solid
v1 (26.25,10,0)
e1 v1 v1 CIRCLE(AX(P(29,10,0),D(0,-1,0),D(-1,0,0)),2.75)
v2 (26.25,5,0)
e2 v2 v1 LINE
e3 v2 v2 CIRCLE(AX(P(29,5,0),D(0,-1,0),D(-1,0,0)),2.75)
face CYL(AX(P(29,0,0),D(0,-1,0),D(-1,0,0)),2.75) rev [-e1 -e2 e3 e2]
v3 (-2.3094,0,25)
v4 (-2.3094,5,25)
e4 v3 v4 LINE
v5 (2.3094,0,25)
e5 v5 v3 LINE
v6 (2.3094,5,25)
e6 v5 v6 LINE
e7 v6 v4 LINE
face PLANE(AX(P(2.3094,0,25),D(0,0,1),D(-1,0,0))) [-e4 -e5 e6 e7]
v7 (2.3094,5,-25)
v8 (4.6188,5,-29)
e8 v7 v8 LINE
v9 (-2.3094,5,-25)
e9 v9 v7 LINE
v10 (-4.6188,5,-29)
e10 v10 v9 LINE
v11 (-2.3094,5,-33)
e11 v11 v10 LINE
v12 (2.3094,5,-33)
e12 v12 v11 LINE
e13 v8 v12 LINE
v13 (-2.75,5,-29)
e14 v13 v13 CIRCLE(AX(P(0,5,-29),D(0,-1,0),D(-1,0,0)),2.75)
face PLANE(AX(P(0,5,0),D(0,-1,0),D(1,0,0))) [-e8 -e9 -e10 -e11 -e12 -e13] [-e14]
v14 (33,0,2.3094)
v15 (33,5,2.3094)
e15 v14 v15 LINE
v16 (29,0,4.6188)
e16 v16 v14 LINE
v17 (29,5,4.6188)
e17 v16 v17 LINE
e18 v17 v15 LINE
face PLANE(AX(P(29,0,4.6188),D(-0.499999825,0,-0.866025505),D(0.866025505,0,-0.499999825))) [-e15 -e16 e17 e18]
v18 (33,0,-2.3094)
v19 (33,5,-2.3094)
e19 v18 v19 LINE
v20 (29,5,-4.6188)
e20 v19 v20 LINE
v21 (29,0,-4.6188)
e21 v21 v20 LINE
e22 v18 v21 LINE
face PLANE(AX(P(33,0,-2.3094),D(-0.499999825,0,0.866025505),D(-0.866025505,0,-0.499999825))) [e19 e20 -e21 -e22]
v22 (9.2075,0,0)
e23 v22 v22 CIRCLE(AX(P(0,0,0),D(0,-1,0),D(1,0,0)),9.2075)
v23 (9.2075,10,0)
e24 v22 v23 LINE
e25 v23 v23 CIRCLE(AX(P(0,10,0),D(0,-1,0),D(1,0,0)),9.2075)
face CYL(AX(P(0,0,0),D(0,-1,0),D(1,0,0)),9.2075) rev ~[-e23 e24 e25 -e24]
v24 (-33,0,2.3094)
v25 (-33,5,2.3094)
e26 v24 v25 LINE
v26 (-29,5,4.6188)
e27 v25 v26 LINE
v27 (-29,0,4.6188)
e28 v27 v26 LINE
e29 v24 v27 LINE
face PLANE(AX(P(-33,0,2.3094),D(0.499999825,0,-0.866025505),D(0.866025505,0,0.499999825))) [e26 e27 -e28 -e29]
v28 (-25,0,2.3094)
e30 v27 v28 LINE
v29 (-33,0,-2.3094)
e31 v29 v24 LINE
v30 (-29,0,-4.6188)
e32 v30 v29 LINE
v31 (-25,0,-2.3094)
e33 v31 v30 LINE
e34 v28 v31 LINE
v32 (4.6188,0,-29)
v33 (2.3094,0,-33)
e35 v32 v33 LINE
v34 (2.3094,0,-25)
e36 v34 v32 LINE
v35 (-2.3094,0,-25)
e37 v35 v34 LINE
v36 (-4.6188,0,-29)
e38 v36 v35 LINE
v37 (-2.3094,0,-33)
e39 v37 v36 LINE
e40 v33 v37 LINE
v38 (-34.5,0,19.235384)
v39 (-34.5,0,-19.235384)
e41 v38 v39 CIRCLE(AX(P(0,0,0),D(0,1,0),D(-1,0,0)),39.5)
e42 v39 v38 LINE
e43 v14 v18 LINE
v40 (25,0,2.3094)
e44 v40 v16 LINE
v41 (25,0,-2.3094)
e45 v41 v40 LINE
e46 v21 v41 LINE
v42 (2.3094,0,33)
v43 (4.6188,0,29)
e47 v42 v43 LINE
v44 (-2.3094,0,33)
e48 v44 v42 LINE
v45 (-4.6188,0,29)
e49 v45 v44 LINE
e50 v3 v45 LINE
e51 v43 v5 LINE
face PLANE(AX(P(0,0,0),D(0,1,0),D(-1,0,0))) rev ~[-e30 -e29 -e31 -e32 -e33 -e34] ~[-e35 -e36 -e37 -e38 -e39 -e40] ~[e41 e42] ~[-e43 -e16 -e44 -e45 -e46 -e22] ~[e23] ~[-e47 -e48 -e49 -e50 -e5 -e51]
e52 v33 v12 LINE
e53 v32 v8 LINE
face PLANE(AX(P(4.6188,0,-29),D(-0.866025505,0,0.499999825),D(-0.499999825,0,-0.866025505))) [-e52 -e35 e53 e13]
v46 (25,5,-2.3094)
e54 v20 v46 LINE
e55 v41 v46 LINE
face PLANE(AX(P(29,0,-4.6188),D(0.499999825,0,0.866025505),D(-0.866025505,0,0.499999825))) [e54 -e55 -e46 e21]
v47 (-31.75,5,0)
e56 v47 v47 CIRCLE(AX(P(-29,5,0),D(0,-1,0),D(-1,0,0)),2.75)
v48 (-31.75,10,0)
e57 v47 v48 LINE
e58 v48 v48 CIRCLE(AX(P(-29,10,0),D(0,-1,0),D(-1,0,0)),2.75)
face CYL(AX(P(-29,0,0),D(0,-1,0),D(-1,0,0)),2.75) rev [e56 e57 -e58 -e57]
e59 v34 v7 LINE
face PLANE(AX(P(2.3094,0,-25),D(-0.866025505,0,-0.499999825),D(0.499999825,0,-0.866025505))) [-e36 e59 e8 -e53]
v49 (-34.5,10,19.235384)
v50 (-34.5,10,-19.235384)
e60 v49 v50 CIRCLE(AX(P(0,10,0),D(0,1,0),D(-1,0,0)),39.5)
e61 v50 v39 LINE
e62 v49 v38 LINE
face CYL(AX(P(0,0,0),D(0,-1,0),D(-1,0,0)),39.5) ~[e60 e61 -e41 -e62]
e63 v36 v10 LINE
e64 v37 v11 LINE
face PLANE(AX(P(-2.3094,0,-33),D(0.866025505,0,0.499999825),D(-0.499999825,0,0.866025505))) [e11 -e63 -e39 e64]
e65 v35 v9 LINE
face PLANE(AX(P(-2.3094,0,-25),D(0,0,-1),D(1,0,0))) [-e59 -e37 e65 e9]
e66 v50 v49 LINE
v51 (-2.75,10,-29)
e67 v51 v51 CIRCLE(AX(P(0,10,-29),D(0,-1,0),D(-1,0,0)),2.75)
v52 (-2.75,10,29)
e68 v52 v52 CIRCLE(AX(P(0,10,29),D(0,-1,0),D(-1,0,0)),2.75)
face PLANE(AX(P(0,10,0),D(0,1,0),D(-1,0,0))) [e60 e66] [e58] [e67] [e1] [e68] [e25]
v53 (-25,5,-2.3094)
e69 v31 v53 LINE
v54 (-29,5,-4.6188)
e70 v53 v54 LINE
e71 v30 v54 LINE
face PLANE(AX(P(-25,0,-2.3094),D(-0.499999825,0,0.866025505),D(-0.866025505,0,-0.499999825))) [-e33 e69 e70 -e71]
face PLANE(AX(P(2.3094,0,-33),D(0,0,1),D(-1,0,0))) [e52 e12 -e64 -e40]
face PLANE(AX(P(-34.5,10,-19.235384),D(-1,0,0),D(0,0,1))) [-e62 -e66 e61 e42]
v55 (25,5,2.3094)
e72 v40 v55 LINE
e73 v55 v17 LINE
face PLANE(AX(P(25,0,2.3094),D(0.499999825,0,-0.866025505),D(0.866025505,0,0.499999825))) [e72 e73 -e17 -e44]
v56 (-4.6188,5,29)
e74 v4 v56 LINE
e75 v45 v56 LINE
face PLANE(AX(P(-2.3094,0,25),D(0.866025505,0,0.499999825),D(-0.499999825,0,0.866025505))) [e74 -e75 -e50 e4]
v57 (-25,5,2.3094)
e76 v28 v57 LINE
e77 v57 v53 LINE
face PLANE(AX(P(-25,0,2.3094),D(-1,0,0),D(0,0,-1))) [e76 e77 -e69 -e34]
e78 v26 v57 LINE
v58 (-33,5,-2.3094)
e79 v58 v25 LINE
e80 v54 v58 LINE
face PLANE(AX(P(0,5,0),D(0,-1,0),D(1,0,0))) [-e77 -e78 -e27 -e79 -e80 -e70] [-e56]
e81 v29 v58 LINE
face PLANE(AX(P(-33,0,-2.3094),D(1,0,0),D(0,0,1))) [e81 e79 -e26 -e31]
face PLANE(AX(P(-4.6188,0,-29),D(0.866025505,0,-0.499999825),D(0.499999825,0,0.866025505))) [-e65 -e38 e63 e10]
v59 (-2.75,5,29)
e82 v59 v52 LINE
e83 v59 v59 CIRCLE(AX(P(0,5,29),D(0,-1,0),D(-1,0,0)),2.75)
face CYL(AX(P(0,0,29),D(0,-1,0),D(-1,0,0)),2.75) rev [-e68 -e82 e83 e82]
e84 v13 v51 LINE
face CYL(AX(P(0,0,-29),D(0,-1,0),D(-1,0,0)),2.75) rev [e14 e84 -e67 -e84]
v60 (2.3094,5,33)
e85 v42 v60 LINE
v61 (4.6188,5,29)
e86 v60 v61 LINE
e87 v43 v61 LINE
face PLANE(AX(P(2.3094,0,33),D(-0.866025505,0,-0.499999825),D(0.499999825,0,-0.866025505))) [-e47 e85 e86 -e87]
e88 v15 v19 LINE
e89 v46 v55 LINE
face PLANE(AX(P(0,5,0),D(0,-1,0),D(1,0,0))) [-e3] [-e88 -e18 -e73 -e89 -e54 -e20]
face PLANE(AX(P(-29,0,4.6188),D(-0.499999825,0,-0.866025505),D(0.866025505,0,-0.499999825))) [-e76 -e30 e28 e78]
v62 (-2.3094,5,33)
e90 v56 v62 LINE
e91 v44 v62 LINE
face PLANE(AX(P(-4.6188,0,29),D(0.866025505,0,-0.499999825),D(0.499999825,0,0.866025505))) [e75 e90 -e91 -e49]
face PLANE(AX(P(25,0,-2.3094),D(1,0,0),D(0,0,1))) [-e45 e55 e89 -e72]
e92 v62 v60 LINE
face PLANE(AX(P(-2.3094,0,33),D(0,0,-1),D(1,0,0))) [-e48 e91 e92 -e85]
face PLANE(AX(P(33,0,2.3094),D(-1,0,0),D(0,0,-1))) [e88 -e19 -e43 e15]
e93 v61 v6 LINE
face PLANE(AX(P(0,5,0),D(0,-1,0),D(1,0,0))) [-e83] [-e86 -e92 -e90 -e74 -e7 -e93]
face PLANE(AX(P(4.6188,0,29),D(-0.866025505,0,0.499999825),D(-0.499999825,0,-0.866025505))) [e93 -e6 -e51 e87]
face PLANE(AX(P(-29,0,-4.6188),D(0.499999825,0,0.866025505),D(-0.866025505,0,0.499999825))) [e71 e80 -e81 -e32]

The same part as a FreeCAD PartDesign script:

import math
import FreeCAD as App
import Part
import Sketcher

V = App.Vector
Q = App.Units.Quantity

doc = App.newDocument("Part")
body = doc.addObject("PartDesign::Body", "Body")

# Sketch on XZ plane
sketch1 = body.newObject("Sketcher::SketchObject", "Sketch")
sketch1.AttachmentSupport = (doc.getObject("XZ_Plane"), [""])
sketch1.MapMode = "FlatFace"
sketch1.addGeometry([
    Part.Circle(V(0, 0, 0), V(0, 0, 1), 39.5),  # 0
    Part.Circle(V(0, 29, 0), V(0, 0, 1), 2.8),  # 1
    Part.Circle(V(29, 0, 0), V(0, 0, 1), 2.8),  # 2
    Part.Circle(V(0, -29, 0), V(0, 0, 1), 2.8),  # 3
    Part.Circle(V(-29, 0, 0), V(0, 0, 1), 2.8),  # 4
], False)
sketch1.addConstraint([
    Sketcher.Constraint("Coincident", 0, 3, -1, 1),
    Sketcher.Constraint("Equal", 1, 2),
    Sketcher.Constraint("Equal", 2, 3),
    Sketcher.Constraint("Equal", 3, 4),
    Sketcher.Constraint("Symmetric", 1, 3, 3, 3, -1, 1),
    Sketcher.Constraint("Symmetric", 2, 3, 4, 3, -1, 1),
    Sketcher.Constraint("PointOnObject", 1, 3, -2),
    Sketcher.Constraint("PointOnObject", 2, 3, -1),
    Sketcher.Constraint("Diameter", 0, Q("79 mm")),
    Sketcher.Constraint("Diameter", 1, Q("5.5 mm")),
    Sketcher.Constraint("DistanceY", 3, 3, 1, 3, Q("58 mm")),
    Sketcher.Constraint("DistanceX", 4, 3, 2, 3, Q("58 mm")),
])
pad1 = body.newObject("PartDesign::Pad", "Pad")
pad1.Profile = sketch1
pad1.Length = 10
pad1.Reversed = True

# Sketch on XZ plane
sketch2 = body.newObject("Sketcher::SketchObject", "Sketch001")
sketch2.AttachmentSupport = (doc.getObject("XZ_Plane"), [""])
sketch2.MapMode = "FlatFace"
sketch2.AttachmentOffset = App.Placement(V(0, 0, -10), App.Rotation())
sketch2.addGeometry([
    Part.LineSegment(V(-34, 19, 0), V(-34, -19, 0)),
    Part.ArcOfCircle(Part.Circle(V(0, 0, 0), V(0, 0, 1), 40), math.radians(151), math.radians(209)),
], False)
sketch2.addConstraint([
    Sketcher.Constraint("Coincident", 0, 1, 1, 1),
    Sketcher.Constraint("Coincident", 1, 2, 0, 2),
    Sketcher.Constraint("Vertical", 0),
    Sketcher.Constraint("Coincident", 1, 3, -1, 1),
    Sketcher.Constraint("Radius", 1, Q("39.5 mm")),
    Sketcher.Constraint("DistanceX", 0, 1, -1, 1, Q("34.5 mm")),
])
pocket1 = body.newObject("PartDesign::Pocket", "Pocket")
pocket1.Profile = sketch2
pocket1.Type = "ThroughAll"
pocket1.Midplane = True

# Sketch on XZ plane
sketch3 = body.newObject("Sketcher::SketchObject", "Sketch002")
sketch3.AttachmentSupport = (doc.getObject("XZ_Plane"), [""])
sketch3.MapMode = "FlatFace"
sketch3.addGeometry(Part.Circle(V(0, 0, 0), V(0, 0, 1), 9), False)
sketch3.addConstraint([
    Sketcher.Constraint("Coincident", 0, 3, -1, 1),
    Sketcher.Constraint("Diameter", 0, Q("18.415 mm")),
])
pocket2 = body.newObject("PartDesign::Pocket", "Pocket001")
pocket2.Profile = sketch3
pocket2.Type = "ThroughAll"

# Sketch on XZ plane
sketch4 = body.newObject("Sketcher::SketchObject", "Sketch003")
sketch4.AttachmentSupport = (doc.getObject("XZ_Plane"), [""])
sketch4.MapMode = "FlatFace"
sketch4.addGeometry([
    Part.LineSegment(V(29, -4.6, 0), V(33, -2.3, 0)),  # 0
    Part.LineSegment(V(33, -2.3, 0), V(33, 2.3, 0)),  # 1
    Part.LineSegment(V(33, 2.3, 0), V(29, 4.6, 0)),  # 2
    Part.LineSegment(V(29, 4.6, 0), V(25, 2.3, 0)),  # 3
    Part.LineSegment(V(25, 2.3, 0), V(25, -2.3, 0)),  # 4
    Part.LineSegment(V(25, -2.3, 0), V(29, -4.6, 0)),  # 5
    Part.Circle(V(29, 0, 0), V(0, 0, 1), 2.8),  # 6
    Part.LineSegment(V(2.3, 33, 0), V(-2.3, 33, 0)),  # 7
    Part.LineSegment(V(-2.3, 33, 0), V(-4.6, 29, 0)),  # 8
    Part.LineSegment(V(-4.6, 29, 0), V(-2.3, 25, 0)),  # 9
    Part.LineSegment(V(-2.3, 25, 0), V(2.3, 25, 0)),  # 10
    Part.LineSegment(V(2.3, 25, 0), V(4.6, 29, 0)),  # 11
    Part.LineSegment(V(4.6, 29, 0), V(2.3, 33, 0)),  # 12
    Part.Circle(V(0, 29, 0), V(0, 0, 1), 2.8),  # 13
    Part.LineSegment(V(-33, 2.3, 0), V(-33, -2.3, 0)),  # 14
    Part.LineSegment(V(-33, -2.3, 0), V(-29, -4.6, 0)),  # 15
    Part.LineSegment(V(-29, -4.6, 0), V(-25, -2.3, 0)),  # 16
    Part.LineSegment(V(-25, -2.3, 0), V(-25, 2.3, 0)),  # 17
    Part.LineSegment(V(-25, 2.3, 0), V(-29, 4.6, 0)),  # 18
    Part.LineSegment(V(-29, 4.6, 0), V(-33, 2.3, 0)),  # 19
    Part.Circle(V(-29, 0, 0), V(0, 0, 1), 2.8),  # 20
    Part.LineSegment(V(-2.3, -33, 0), V(2.3, -33, 0)),  # 21
    Part.LineSegment(V(2.3, -33, 0), V(4.6, -29, 0)),  # 22
    Part.LineSegment(V(4.6, -29, 0), V(2.3, -25, 0)),  # 23
    Part.LineSegment(V(2.3, -25, 0), V(-2.3, -25, 0)),  # 24
    Part.LineSegment(V(-2.3, -25, 0), V(-4.6, -29, 0)),  # 25
    Part.LineSegment(V(-4.6, -29, 0), V(-2.3, -33, 0)),  # 26
    Part.Circle(V(0, -29, 0), V(0, 0, 1), 2.8),  # 27
], False)
sketch4.addConstraint([
    Sketcher.Constraint("Coincident", 0, 2, 1, 1),
    Sketcher.Constraint("Coincident", 1, 2, 2, 1),
    Sketcher.Constraint("Coincident", 2, 2, 3, 1),
    Sketcher.Constraint("Coincident", 3, 2, 4, 1),
    Sketcher.Constraint("Coincident", 4, 2, 5, 1),
    Sketcher.Constraint("Coincident", 5, 2, 0, 1),
    Sketcher.Constraint("Coincident", 7, 2, 8, 1),
    Sketcher.Constraint("Coincident", 8, 2, 9, 1),
    Sketcher.Constraint("Coincident", 9, 2, 10, 1),
    Sketcher.Constraint("Coincident", 10, 2, 11, 1),
    Sketcher.Constraint("Coincident", 11, 2, 12, 1),
    Sketcher.Constraint("Coincident", 12, 2, 7, 1),
    Sketcher.Constraint("Coincident", 14, 2, 15, 1),
    Sketcher.Constraint("Coincident", 15, 2, 16, 1),
    Sketcher.Constraint("Coincident", 16, 2, 17, 1),
    Sketcher.Constraint("Coincident", 17, 2, 18, 1),
    Sketcher.Constraint("Coincident", 18, 2, 19, 1),
    Sketcher.Constraint("Coincident", 19, 2, 14, 1),
    Sketcher.Constraint("Coincident", 21, 2, 22, 1),
    Sketcher.Constraint("Coincident", 22, 2, 23, 1),
    Sketcher.Constraint("Coincident", 23, 2, 24, 1),
    Sketcher.Constraint("Coincident", 24, 2, 25, 1),
    Sketcher.Constraint("Coincident", 25, 2, 26, 1),
    Sketcher.Constraint("Coincident", 26, 2, 21, 1),
    Sketcher.Constraint("Vertical", 1),
    Sketcher.Constraint("Vertical", 4),
    Sketcher.Constraint("Horizontal", 7),
    Sketcher.Constraint("Horizontal", 10),
    Sketcher.Constraint("Vertical", 14),
    Sketcher.Constraint("Vertical", 17),
    Sketcher.Constraint("Horizontal", 21),
    Sketcher.Constraint("Horizontal", 24),
    Sketcher.Constraint("Equal", 6, 13),
    Sketcher.Constraint("Equal", 13, 20),
    Sketcher.Constraint("Equal", 20, 27),
    Sketcher.Constraint("Symmetric", 6, 3, 20, 3, -1, 1),
    Sketcher.Constraint("Symmetric", 13, 3, 27, 3, -1, 1),
    Sketcher.Constraint("Symmetric", 1, 2, 14, 2, -1, 1),
    Sketcher.Constraint("Symmetric", 2, 2, 15, 2, -1, 1),
    Sketcher.Constraint("Symmetric", 3, 2, 16, 2, -1, 1),
    Sketcher.Constraint("Symmetric", 5, 2, 18, 2, -1, 1),
    Sketcher.Constraint("Symmetric", 7, 2, 21, 2, -1, 1),
    Sketcher.Constraint("Symmetric", 8, 2, 22, 2, -1, 1),
    Sketcher.Constraint("Symmetric", 9, 2, 23, 2, -1, 1),
    Sketcher.Constraint("Symmetric", 11, 2, 25, 2, -1, 1),
    Sketcher.Constraint("Symmetric", 8, 2, 11, 2, -2),
    Sketcher.Constraint("Symmetric", 5, 2, 15, 2, -2),
    Sketcher.Constraint("PointOnObject", 6, 3, -1),
    Sketcher.Constraint("PointOnObject", 13, 3, -2),
    Sketcher.Constraint("Parallel", 0, 3),
    Sketcher.Constraint("Parallel", 2, 5),
    Sketcher.Constraint("Perpendicular", 5, 8),
    Sketcher.Constraint("Perpendicular", 3, 9),
    Sketcher.Constraint("Parallel", 8, 11),
    Sketcher.Constraint("Parallel", 9, 12),
    Sketcher.Constraint("Parallel", 15, 18),
    Sketcher.Constraint("Parallel", 16, 19),
    Sketcher.Constraint("Parallel", 22, 25),
    Sketcher.Constraint("Parallel", 23, 26),
    Sketcher.Constraint("Horizontal", 1, 2, 3, 2),
    Sketcher.Constraint("Horizontal", 0, 2, 4, 2),
    Sketcher.Constraint("Horizontal", 13, 3, 8, 2),
    Sketcher.Constraint("Vertical", 6, 3, 2, 2),
    Sketcher.Constraint("Vertical", 7, 2, 9, 2),
    Sketcher.Constraint("Equal", 24, 1),
    Sketcher.Constraint("Equal", 5, 8),
    Sketcher.Constraint("Diameter", 6, Q("5.5 mm")),
    Sketcher.Constraint("Angle", 0, Q("30 deg")),
    Sketcher.Constraint("DistanceX", -1, 1, 6, 3, Q("29 mm")),
    Sketcher.Constraint("DistanceY", -1, 1, 13, 3, Q("29 mm")),
    Sketcher.Constraint("DistanceX", -1, 1, 0, 2, Q("33 mm")),
    Sketcher.Constraint("DistanceX", 7, 2, 7, 1, Q("4.6188 mm")),
])
pocket3 = body.newObject("PartDesign::Pocket", "Pocket002")
pocket3.Profile = sketch4
pocket3.Length = 5

doc.recompute()
